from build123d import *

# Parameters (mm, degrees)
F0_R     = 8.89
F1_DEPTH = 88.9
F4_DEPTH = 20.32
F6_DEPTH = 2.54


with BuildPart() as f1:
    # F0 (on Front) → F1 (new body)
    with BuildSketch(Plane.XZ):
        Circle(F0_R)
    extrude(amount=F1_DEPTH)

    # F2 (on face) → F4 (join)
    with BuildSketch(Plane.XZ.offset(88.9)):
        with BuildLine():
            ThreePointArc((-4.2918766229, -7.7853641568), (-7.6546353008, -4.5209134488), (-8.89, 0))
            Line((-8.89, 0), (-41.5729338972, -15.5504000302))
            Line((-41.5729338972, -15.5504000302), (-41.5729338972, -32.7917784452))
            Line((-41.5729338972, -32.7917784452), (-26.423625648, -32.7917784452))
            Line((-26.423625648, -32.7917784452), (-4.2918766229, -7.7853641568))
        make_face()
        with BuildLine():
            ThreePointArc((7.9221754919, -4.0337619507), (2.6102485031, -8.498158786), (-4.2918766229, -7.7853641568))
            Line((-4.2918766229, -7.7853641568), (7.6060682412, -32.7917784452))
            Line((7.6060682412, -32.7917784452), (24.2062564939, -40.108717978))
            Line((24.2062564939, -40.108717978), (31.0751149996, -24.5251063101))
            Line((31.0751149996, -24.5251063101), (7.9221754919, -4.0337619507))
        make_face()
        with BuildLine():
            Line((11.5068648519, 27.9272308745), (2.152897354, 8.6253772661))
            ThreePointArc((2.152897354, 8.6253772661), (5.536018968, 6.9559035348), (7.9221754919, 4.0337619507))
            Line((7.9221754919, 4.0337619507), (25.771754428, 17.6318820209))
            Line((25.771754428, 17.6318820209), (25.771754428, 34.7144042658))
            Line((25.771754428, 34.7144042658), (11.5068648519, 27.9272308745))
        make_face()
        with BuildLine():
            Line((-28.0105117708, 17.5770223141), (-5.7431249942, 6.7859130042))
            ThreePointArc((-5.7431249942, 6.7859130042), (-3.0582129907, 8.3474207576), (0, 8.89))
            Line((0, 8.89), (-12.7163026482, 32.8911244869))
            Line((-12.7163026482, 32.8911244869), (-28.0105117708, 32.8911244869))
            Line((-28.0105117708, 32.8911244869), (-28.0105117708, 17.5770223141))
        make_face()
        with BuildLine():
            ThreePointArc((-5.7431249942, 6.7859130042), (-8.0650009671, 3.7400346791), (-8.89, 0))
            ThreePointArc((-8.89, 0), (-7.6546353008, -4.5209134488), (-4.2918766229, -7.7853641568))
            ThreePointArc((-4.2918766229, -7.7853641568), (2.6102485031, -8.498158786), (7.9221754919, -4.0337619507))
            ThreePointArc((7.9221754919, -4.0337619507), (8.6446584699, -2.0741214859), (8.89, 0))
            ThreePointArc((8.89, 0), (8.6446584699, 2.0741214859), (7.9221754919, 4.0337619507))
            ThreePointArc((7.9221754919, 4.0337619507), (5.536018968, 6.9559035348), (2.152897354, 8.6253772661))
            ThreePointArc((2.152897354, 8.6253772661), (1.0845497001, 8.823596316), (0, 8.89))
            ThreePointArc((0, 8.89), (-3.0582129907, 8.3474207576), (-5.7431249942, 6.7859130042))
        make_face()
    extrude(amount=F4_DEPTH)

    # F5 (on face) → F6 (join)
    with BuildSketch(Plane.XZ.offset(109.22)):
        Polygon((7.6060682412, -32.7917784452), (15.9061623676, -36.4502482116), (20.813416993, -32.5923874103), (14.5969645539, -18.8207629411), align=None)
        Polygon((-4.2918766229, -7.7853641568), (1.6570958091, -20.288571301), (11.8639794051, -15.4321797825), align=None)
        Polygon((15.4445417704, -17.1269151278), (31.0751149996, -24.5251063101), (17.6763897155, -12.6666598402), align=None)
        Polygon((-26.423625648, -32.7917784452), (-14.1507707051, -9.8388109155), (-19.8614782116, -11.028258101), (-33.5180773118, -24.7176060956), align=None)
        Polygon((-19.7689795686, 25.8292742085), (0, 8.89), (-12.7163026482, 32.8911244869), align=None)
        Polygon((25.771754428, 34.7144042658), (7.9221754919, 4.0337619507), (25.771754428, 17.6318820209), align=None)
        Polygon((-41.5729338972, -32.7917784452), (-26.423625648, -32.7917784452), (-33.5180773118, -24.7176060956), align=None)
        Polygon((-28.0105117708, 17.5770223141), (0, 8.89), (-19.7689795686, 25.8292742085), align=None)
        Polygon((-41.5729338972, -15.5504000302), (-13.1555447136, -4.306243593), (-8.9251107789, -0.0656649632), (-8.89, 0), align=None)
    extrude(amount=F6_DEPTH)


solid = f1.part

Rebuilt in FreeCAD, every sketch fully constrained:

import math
import FreeCAD as App
import Part
import Sketcher

V = App.Vector
Q = App.Units.Quantity

doc = App.newDocument("Part")
params = doc.addObject("Spreadsheet::Sheet", "Params")
for row, (alias, value) in enumerate([
    ("sketch1_diameter", "0.7 in"),
    ("pad1_length", "3.5 in"),
    ("sketch2_radius", "0.35 in"),
    ("pad2_length", "0.8 in"),
    ("pad3_length", "0.1 in"),
], start=1):
    params.set(f"A{row}", alias)
    params.set(f"B{row}", "=" + value)
    params.setAlias(f"B{row}", alias)

body = doc.addObject("PartDesign::Body", "Body")

sketch1 = body.newObject("Sketcher::SketchObject", "Sketch")
sketch1.AttachmentSupport = (doc.getObject("XZ_Plane"), [""])
sketch1.MapMode = "FlatFace"
sketch1.addGeometry(Part.Circle(V(0, 0, 0), V(0, 0, 1), 9), False)
sketch1.addConstraint(Sketcher.Constraint("Coincident", 0, 3, -1, 1))
sketch1.addConstraint(Sketcher.Constraint("Diameter", 0, Q("0.7 in")))
sketch1.setExpression("Constraints[1]", "Params.sketch1_diameter")
pad1 = body.newObject("PartDesign::Pad", "Pad")
pad1.Profile = sketch1
pad1.setExpression("Length", "Params.pad1_length")

sketch2 = body.newObject("Sketcher::SketchObject", "Sketch001")
sketch2.AttachmentSupport = (doc.getObject("XZ_Plane"), [""])
sketch2.MapMode = "FlatFace"
sketch2.AttachmentOffset = App.Placement(V(0, 0, 3.5 * 25.4), App.Rotation())
sketch2.addGeometry(Part.LineSegment(V(-8.9, 0, 0), V(-41.6, -15.6, 0)), False)
sketch2.addGeometry(Part.LineSegment(V(-41.6, -15.6, 0), V(-41.6, -32.8, 0)), False)
sketch2.addGeometry(Part.LineSegment(V(-41.6, -32.8, 0), V(-26.4, -32.8, 0)), False)
sketch2.addGeometry(Part.LineSegment(V(-26.4, -32.8, 0), V(-4.3, -7.8, 0)), False)
sketch2.addGeometry(Part.LineSegment(V(-4.3, -7.8, 0), V(7.6, -32.8, 0)), False)
sketch2.addGeometry(Part.LineSegment(V(7.6, -32.8, 0), V(24.2, -40.1, 0)), False)
sketch2.addGeometry(Part.LineSegment(V(24.2, -40.1, 0), V(31.1, -24.5, 0)), False)
sketch2.addGeometry(Part.LineSegment(V(31.1, -24.5, 0), V(7.9, -4, 0)), False)
sketch2.addGeometry(Part.ArcOfCircle(Part.Circle(V(0, 0, 0), V(0, 0, 1), 8.9), math.radians(-27), math.radians(0)), False)
sketch2.addGeometry(Part.ArcOfCircle(Part.Circle(V(0, 0, 0), V(0, 0, 1), 8.9), math.radians(0), math.radians(27)), False)
sketch2.addGeometry(Part.LineSegment(V(7.9, 4, 0), V(25.8, 17.6, 0)), False)
sketch2.addGeometry(Part.LineSegment(V(25.8, 17.6, 0), V(25.8, 34.7, 0)), False)
sketch2.addGeometry(Part.LineSegment(V(25.8, 34.7, 0), V(11.5, 27.9, 0)), False)
sketch2.addGeometry(Part.LineSegment(V(11.5, 27.9, 0), V(2.2, 8.6, 0)), False)
sketch2.addGeometry(Part.ArcOfCircle(Part.Circle(V(0, 0, 0), V(0, 0, 1), 8.9), math.radians(75.99), math.radians(90)), False)
sketch2.addGeometry(Part.LineSegment(V(0, 8.9, 0), V(-12.7, 32.9, 0)), False)
sketch2.addGeometry(Part.LineSegment(V(-12.7, 32.9, 0), V(-28, 32.9, 0)), False)
sketch2.addGeometry(Part.LineSegment(V(-28, 32.9, 0), V(-28, 17.6, 0)), False)
sketch2.addGeometry(Part.LineSegment(V(-28, 17.6, 0), V(-5.7, 6.8, 0)), False)
sketch2.addGeometry(Part.ArcOfCircle(Part.Circle(V(0, 0, 0), V(0, 0, 1), 8.9), math.radians(130), math.radians(180)), False)
sketch2.addConstraint(Sketcher.Constraint("Coincident", 0, 2, 1, 1))
sketch2.addConstraint(Sketcher.Constraint("Coincident", 1, 2, 2, 1))
sketch2.addConstraint(Sketcher.Constraint("Coincident", 2, 2, 3, 1))
sketch2.addConstraint(Sketcher.Constraint("Coincident", 3, 2, 4, 1))
sketch2.addConstraint(Sketcher.Constraint("Coincident", 4, 2, 5, 1))
sketch2.addConstraint(Sketcher.Constraint("Coincident", 5, 2, 6, 1))
sketch2.addConstraint(Sketcher.Constraint("Coincident", 6, 2, 7, 1))
sketch2.addConstraint(Sketcher.Constraint("Coincident", 7, 2, 8, 1))
sketch2.addConstraint(Sketcher.Constraint("Tangent", 8, 2, 9, 1))
sketch2.addConstraint(Sketcher.Constraint("Coincident", 9, 2, 10, 1))
sketch2.addConstraint(Sketcher.Constraint("Coincident", 10, 2, 11, 1))
sketch2.addConstraint(Sketcher.Constraint("Coincident", 11, 2, 12, 1))
sketch2.addConstraint(Sketcher.Constraint("Coincident", 12, 2, 13, 1))
sketch2.addConstraint(Sketcher.Constraint("Coincident", 13, 2, 14, 1))
sketch2.addConstraint(Sketcher.Constraint("Coincident", 14, 2, 15, 1))
sketch2.addConstraint(Sketcher.Constraint("Coincident", 15, 2, 16, 1))
sketch2.addConstraint(Sketcher.Constraint("Coincident", 16, 2, 17, 1))
sketch2.addConstraint(Sketcher.Constraint("Coincident", 17, 2, 18, 1))
sketch2.addConstraint(Sketcher.Constraint("Coincident", 18, 2, 19, 1))
sketch2.addConstraint(Sketcher.Constraint("Coincident", 19, 2, 0, 1))
sketch2.addConstraint(Sketcher.Constraint("Vertical", 1))
sketch2.addConstraint(Sketcher.Constraint("Horizontal", 2))
sketch2.addConstraint(Sketcher.Constraint("Vertical", 11))
sketch2.addConstraint(Sketcher.Constraint("Horizontal", 16))
sketch2.addConstraint(Sketcher.Constraint("Vertical", 17))
sketch2.addConstraint(Sketcher.Constraint("Coincident", 8, 3, -1, 1))
sketch2.addConstraint(Sketcher.Constraint("Coincident", 14, 3, -1, 1))
sketch2.addConstraint(Sketcher.Constraint("Coincident", 19, 3, -1, 1))
sketch2.addConstraint(Sketcher.Constraint("Equal", 8, 9))
sketch2.addConstraint(Sketcher.Constraint("Equal", 9, 14))
sketch2.addConstraint(Sketcher.Constraint("Equal", 14, 19))
sketch2.addConstraint(Sketcher.Constraint("PointOnObject", 8, 2, -1))
sketch2.addConstraint(Sketcher.Constraint("PointOnObject", 14, 2, -2))
sketch2.addConstraint(Sketcher.Constraint("PointOnObject", 19, 2, -1))
sketch2.addConstraint(Sketcher.Constraint("Perpendicular", 0, 4))
sketch2.addConstraint(Sketcher.Constraint("Perpendicular", 5, 6))
sketch2.addConstraint(Sketcher.Constraint("Perpendicular", 3, 7))
sketch2.addConstraint(Sketcher.Constraint("Perpendicular", 4, 12))
sketch2.addConstraint(Sketcher.Constraint("Perpendicular", 13, 18))
sketch2.addConstraint(Sketcher.Constraint("Horizontal", 2, 2, 4, 2))
sketch2.addConstraint(Sketcher.Constraint("Vertical", 7, 2, 9, 2))
sketch2.addConstraint(Sketcher.Constraint("Radius", 8, Q("0.35 in")))
sketch2.addConstraint(Sketcher.Constraint("DistanceX", 2, 1, 2, 2, Q("15.149308 mm")))
sketch2.addConstraint(Sketcher.Constraint("DistanceX", 16, 2, 16, 1, Q("15.294209 mm")))
sketch2.addConstraint(Sketcher.Constraint("DistanceY", 1, 2, 1, 1, Q("17.241378 mm")))
sketch2.addConstraint(Sketcher.Constraint("DistanceY", 0, 2, -1, 1, Q("15.5504 mm")))
sketch2.addConstraint(Sketcher.Constraint("DistanceX", 15, 2, 13, 2, Q("14.8692 mm")))
sketch2.addConstraint(Sketcher.Constraint("Distance", 0, Q("36.193772 mm")))
sketch2.addConstraint(Sketcher.Constraint("Distance", 3, Q("33.393638 mm")))
sketch2.addConstraint(Sketcher.Constraint("Distance", 4, Q("27.692632 mm")))
sketch2.addConstraint(Sketcher.Constraint("Distance", 5, Q("18.14122 mm")))
sketch2.addConstraint(Sketcher.Constraint("Distance", 10, Q("22.43917 mm")))
sketch2.addConstraint(Sketcher.Constraint("Distance", 12, Q("15.79724 mm")))
sketch2.addConstraint(Sketcher.Constraint("Distance", 13, Q("21.448969 mm")))
sketch2.addConstraint(Sketcher.Constraint("DistanceY", 11, 1, 11, 2, Q("17.082522 mm")))
sketch2.addConstraint(Sketcher.Constraint("DistanceY", 17, 2, 17, 1, Q("15.314102 mm")))
sketch2.addConstraint(Sketcher.Constraint("DistanceY", 7, 2, -1, 1, Q("4.033762 mm")))
sketch2.addConstraint(Sketcher.Constraint("DistanceY", -1, 1, 12, 2, Q("27.927231 mm")))
sketch2.addConstraint(Sketcher.Constraint("DistanceX", 4, 2, 5, 2, Q("16.600188 mm")))
sketch2.addConstraint(Sketcher.Constraint("Distance", 15, Q("27.161707 mm")))
sketch2.setExpression("Constraints[41]", "Params.sketch2_radius")
pad2 = body.newObject("PartDesign::Pad", "Pad001")
pad2.Profile = sketch2
pad2.setExpression("Length", "Params.pad2_length")

sketch3 = body.newObject("Sketcher::SketchObject", "Sketch002")
sketch3.AttachmentSupport = (doc.getObject("XZ_Plane"), [""])
sketch3.MapMode = "FlatFace"
sketch3.AttachmentOffset = App.Placement(V(0, 0, 4.3 * 25.4), App.Rotation())
sketch3.addGeometry(Part.LineSegment(V(7.61, -32.79, 0), V(15.91, -36.45, 0)), False)
sketch3.addGeometry(Part.LineSegment(V(15.91, -36.45, 0), V(20.81, -32.59, 0)), False)
sketch3.addGeometry(Part.LineSegment(V(20.81, -32.59, 0), V(14.6, -18.82, 0)), False)
sketch3.addGeometry(Part.LineSegment(V(14.6, -18.82, 0), V(7.61, -32.79, 0)), False)
sketch3.addGeometry(Part.LineSegment(V(-4.29, -7.79, 0), V(1.66, -20.29, 0)), False)
sketch3.addGeometry(Part.LineSegment(V(1.66, -20.29, 0), V(11.86, -15.43, 0)), False)
sketch3.addGeometry(Part.LineSegment(V(11.86, -15.43, 0), V(-4.29, -7.79, 0)), False)
sketch3.addGeometry(Part.LineSegment(V(15.44, -17.13, 0), V(31.08, -24.53, 0)), False)
sketch3.addGeometry(Part.LineSegment(V(31.08, -24.53, 0), V(17.68, -12.67, 0)), False)
sketch3.addGeometry(Part.LineSegment(V(17.68, -12.67, 0), V(15.44, -17.13, 0)), False)
sketch3.addGeometry(Part.LineSegment(V(-26.42, -32.79, 0), V(-14.15, -9.84, 0)), False)
sketch3.addGeometry(Part.LineSegment(V(-14.15, -9.84, 0), V(-19.86, -11.03, 0)), False)
sketch3.addGeometry(Part.LineSegment(V(-19.86, -11.03, 0), V(-33.52, -24.72, 0)), False)
sketch3.addGeometry(Part.LineSegment(V(-33.52, -24.72, 0), V(-41.57, -32.79, 0)), False)
sketch3.addGeometry(Part.LineSegment(V(-41.57, -32.79, 0), V(-26.42, -32.79, 0)), False)
sketch3.addGeometry(Part.LineSegment(V(0, 8.89, 0), V(-12.72, 32.89, 0)), False)
sketch3.addGeometry(Part.LineSegment(V(-12.72, 32.89, 0), V(-19.77, 25.83, 0)), False)
sketch3.addGeometry(Part.LineSegment(V(-19.77, 25.83, 0), V(-28.01, 17.58, 0)), False)
sketch3.addGeometry(Part.LineSegment(V(-28.01, 17.58, 0), V(0, 8.89, 0)), False)
sketch3.addGeometry(Part.LineSegment(V(25.77, 34.71, 0), V(7.92, 4.03, 0)), False)
sketch3.addGeometry(Part.LineSegment(V(7.92, 4.03, 0), V(25.77, 17.63, 0)), False)
sketch3.addGeometry(Part.LineSegment(V(25.77, 17.63, 0), V(25.77, 34.71, 0)), False)
sketch3.addGeometry(Part.LineSegment(V(-41.57, -15.55, 0), V(-13.16, -4.31, 0)), False)
sketch3.addGeometry(Part.LineSegment(V(-13.16, -4.31, 0), V(-8.93, -0.07, 0)), False)
sketch3.addGeometry(Part.LineSegment(V(-8.93, -0.07, 0), V(-8.89, 0, 0)), False)
sketch3.addGeometry(Part.LineSegment(V(-8.89, 0, 0), V(-41.57, -15.55, 0)), False)
sketch3.addConstraint(Sketcher.Constraint("Coincident", 0, 2, 1, 1))
sketch3.addConstraint(Sketcher.Constraint("Coincident", 1, 2, 2, 1))
sketch3.addConstraint(Sketcher.Constraint("Coincident", 2, 2, 3, 1))
sketch3.addConstraint(Sketcher.Constraint("Coincident", 3, 2, 0, 1))
sketch3.addConstraint(Sketcher.Constraint("Coincident", 4, 2, 5, 1))
sketch3.addConstraint(Sketcher.Constraint("Coincident", 5, 2, 6, 1))
sketch3.addConstraint(Sketcher.Constraint("Coincident", 6, 2, 4, 1))
sketch3.addConstraint(Sketcher.Constraint("Coincident", 7, 2, 8, 1))
sketch3.addConstraint(Sketcher.Constraint("Coincident", 8, 2, 9, 1))
sketch3.addConstraint(Sketcher.Constraint("Coincident", 9, 2, 7, 1))
sketch3.addConstraint(Sketcher.Constraint("Coincident", 10, 2, 11, 1))
sketch3.addConstraint(Sketcher.Constraint("Coincident", 11, 2, 12, 1))
sketch3.addConstraint(Sketcher.Constraint("Coincident", 12, 2, 13, 1))
sketch3.addConstraint(Sketcher.Constraint("Coincident", 13, 2, 14, 1))
sketch3.addConstraint(Sketcher.Constraint("Coincident", 14, 2, 10, 1))
sketch3.addConstraint(Sketcher.Constraint("Coincident", 15, 2, 16, 1))
sketch3.addConstraint(Sketcher.Constraint("Coincident", 16, 2, 17, 1))
sketch3.addConstraint(Sketcher.Constraint("Coincident", 17, 2, 18, 1))
sketch3.addConstraint(Sketcher.Constraint("Coincident", 18, 2, 15, 1))
sketch3.addConstraint(Sketcher.Constraint("Coincident", 19, 2, 20, 1))
sketch3.addConstraint(Sketcher.Constraint("Coincident", 20, 2, 21, 1))
sketch3.addConstraint(Sketcher.Constraint("Coincident", 21, 2, 19, 1))
sketch3.addConstraint(Sketcher.Constraint("Coincident", 22, 2, 23, 1))
sketch3.addConstraint(Sketcher.Constraint("Coincident", 23, 2, 24, 1))
sketch3.addConstraint(Sketcher.Constraint("Coincident", 24, 2, 25, 1))
sketch3.addConstraint(Sketcher.Constraint("Coincident", 25, 2, 22, 1))
sketch3.addConstraint(Sketcher.Constraint("Horizontal", 14))
sketch3.addConstraint(Sketcher.Constraint("Vertical", 21))
sketch3.addConstraint(Sketcher.Constraint("PointOnObject", 18, 2, -2))
sketch3.addConstraint(Sketcher.Constraint("PointOnObject", 24, 2, -1))
sketch3.addConstraint(Sketcher.Constraint("Perpendicular", 4, 5))
sketch3.addConstraint(Sketcher.Constraint("Parallel", 6, 7))
sketch3.addConstraint(Sketcher.Constraint("Parallel", 3, 9))
sketch3.addConstraint(Sketcher.Constraint("Parallel", 12, 13))
sketch3.addConstraint(Sketcher.Constraint("Parallel", 16, 17))
sketch3.addConstraint(Sketcher.Constraint("Parallel", 13, 23))
sketch3.addConstraint(Sketcher.Constraint("Parallel", 10, 24))
sketch3.addConstraint(Sketcher.Constraint("Parallel", 5, 25))
sketch3.addConstraint(Sketcher.Constraint("Horizontal", 3, 2, 13, 2))
sketch3.addConstraint(Sketcher.Constraint("Vertical", 13, 2, 25, 2))
sketch3.addConstraint(Sketcher.Constraint("DistanceY", -1, 1, 18, 2, Q("0.35 in")))
sketch3.addConstraint(Sketcher.Constraint("DistanceX", 24, 2, -1, 1, Q("0.35 in")))
sketch3.addConstraint(Sketcher.Constraint("Distance", 19, Q("35.495201 mm")))
sketch3.addConstraint(Sketcher.Constraint("DistanceX", 14, 1, 14, 2, Q("15.149308 mm")))
sketch3.addConstraint(Sketcher.Constraint("DistanceY", 25, 2, -1, 1, Q("15.5504 mm")))
sketch3.addConstraint(Sketcher.Constraint("DistanceY", 3, 2, 5, 2, Q("17.359599 mm")))
sketch3.addConstraint(Sketcher.Constraint("DistanceY", 2, 2, 6, 2, Q("11.035399 mm")))
sketch3.addConstraint(Sketcher.Constraint("DistanceX", 1, 2, 7, 2, Q("10.261698 mm")))
sketch3.addConstraint(Sketcher.Constraint("DistanceX", 11, 2, 6, 2, Q("15.569602 mm")))
sketch3.addConstraint(Sketcher.Constraint("DistanceX", 12, 2, 11, 2, Q("13.656599 mm")))
sketch3.addConstraint(Sketcher.Constraint("DistanceX", 11, 2, 16, 2, Q("0.092499 mm")))
sketch3.addConstraint(Sketcher.Constraint("DistanceY", 6, 2, 23, 2, Q("7.719699 mm")))
sketch3.addConstraint(Sketcher.Constraint("Distance", 0, Q("9.07061 mm")))
sketch3.addConstraint(Sketcher.Constraint("Distance", 3, Q("15.622481 mm")))
sketch3.addConstraint(Sketcher.Constraint("Distance", 5, Q("11.303319 mm")))
sketch3.addConstraint(Sketcher.Constraint("Distance", 12, Q("19.336518 mm")))
sketch3.addConstraint(Sketcher.Constraint("Distance", 16, Q("9.98048 mm")))
sketch3.addConstraint(Sketcher.Constraint("Distance", 17, Q("11.662869 mm")))
sketch3.addConstraint(Sketcher.Constraint("Distance", 20, Q("22.43917 mm")))
sketch3.addConstraint(Sketcher.Constraint("Distance", 22, Q("30.561071 mm")))
sketch3.addConstraint(Sketcher.Constraint("Distance", 25, Q("36.193772 mm")))
sketch3.addConstraint(Sketcher.Constraint("DistanceY", 21, 1, 21, 2, Q("17.082522 mm")))
sketch3.addConstraint(Sketcher.Constraint("DistanceY", 0, 2, -1, 1, Q("36.450248 mm")))
sketch3.addConstraint(Sketcher.Constraint("DistanceX", -1, 1, 3, 2, Q("7.606068 mm")))
sketch3.addConstraint(Sketcher.Constraint("DistanceY", 3, 2, -1, 1, Q("32.791778 mm")))
sketch3.addConstraint(Sketcher.Constraint("DistanceX", -1, 1, 5, 2, Q("11.863979 mm")))
sketch3.addConstraint(Sketcher.Constraint("DistanceX", -1, 1, 8, 2, Q("17.67639 mm")))
sketch3.addConstraint(Sketcher.Constraint("DistanceY", 8, 2, -1, 1, Q("12.66666 mm")))
sketch3.addConstraint(Sketcher.Constraint("DistanceX", -1, 1, 9, 2, Q("15.444542 mm")))
sketch3.addConstraint(Sketcher.Constraint("DistanceX", 10, 2, -1, 1, Q("14.150771 mm")))
sketch3.addConstraint(Sketcher.Constraint("DistanceY", 10, 2, -1, 1, Q("9.838811 mm")))
sketch3.addConstraint(Sketcher.Constraint("DistanceX", 11, 2, -1, 1, Q("19.861478 mm")))
sketch3.addConstraint(Sketcher.Constraint("DistanceX", 17, 2, -1, 1, Q("28.010512 mm")))
sketch3.addConstraint(Sketcher.Constraint("DistanceY", -1, 1, 19, 2, Q("4.033762 mm")))
sketch3.addConstraint(Sketcher.Constraint("DistanceY", 0, 2, 1, 2, Q("3.857861 mm")))
sketch3.addConstraint(Sketcher.Constraint("DistanceX", 3, 2, 1, 2, Q("13.207349 mm")))
sketch3.addConstraint(Sketcher.Constraint("DistanceY", 6, 2, 15, 2, Q("40.676489 mm")))
sketch3.addConstraint(Sketcher.Constraint("DistanceX", -1, 1, 19, 2, Q("7.922175 mm")))
pad3 = body.newObject("PartDesign::Pad", "Pad002")
pad3.Profile = sketch3
pad3.setExpression("Length", "Params.pad3_length")

doc.recompute()
